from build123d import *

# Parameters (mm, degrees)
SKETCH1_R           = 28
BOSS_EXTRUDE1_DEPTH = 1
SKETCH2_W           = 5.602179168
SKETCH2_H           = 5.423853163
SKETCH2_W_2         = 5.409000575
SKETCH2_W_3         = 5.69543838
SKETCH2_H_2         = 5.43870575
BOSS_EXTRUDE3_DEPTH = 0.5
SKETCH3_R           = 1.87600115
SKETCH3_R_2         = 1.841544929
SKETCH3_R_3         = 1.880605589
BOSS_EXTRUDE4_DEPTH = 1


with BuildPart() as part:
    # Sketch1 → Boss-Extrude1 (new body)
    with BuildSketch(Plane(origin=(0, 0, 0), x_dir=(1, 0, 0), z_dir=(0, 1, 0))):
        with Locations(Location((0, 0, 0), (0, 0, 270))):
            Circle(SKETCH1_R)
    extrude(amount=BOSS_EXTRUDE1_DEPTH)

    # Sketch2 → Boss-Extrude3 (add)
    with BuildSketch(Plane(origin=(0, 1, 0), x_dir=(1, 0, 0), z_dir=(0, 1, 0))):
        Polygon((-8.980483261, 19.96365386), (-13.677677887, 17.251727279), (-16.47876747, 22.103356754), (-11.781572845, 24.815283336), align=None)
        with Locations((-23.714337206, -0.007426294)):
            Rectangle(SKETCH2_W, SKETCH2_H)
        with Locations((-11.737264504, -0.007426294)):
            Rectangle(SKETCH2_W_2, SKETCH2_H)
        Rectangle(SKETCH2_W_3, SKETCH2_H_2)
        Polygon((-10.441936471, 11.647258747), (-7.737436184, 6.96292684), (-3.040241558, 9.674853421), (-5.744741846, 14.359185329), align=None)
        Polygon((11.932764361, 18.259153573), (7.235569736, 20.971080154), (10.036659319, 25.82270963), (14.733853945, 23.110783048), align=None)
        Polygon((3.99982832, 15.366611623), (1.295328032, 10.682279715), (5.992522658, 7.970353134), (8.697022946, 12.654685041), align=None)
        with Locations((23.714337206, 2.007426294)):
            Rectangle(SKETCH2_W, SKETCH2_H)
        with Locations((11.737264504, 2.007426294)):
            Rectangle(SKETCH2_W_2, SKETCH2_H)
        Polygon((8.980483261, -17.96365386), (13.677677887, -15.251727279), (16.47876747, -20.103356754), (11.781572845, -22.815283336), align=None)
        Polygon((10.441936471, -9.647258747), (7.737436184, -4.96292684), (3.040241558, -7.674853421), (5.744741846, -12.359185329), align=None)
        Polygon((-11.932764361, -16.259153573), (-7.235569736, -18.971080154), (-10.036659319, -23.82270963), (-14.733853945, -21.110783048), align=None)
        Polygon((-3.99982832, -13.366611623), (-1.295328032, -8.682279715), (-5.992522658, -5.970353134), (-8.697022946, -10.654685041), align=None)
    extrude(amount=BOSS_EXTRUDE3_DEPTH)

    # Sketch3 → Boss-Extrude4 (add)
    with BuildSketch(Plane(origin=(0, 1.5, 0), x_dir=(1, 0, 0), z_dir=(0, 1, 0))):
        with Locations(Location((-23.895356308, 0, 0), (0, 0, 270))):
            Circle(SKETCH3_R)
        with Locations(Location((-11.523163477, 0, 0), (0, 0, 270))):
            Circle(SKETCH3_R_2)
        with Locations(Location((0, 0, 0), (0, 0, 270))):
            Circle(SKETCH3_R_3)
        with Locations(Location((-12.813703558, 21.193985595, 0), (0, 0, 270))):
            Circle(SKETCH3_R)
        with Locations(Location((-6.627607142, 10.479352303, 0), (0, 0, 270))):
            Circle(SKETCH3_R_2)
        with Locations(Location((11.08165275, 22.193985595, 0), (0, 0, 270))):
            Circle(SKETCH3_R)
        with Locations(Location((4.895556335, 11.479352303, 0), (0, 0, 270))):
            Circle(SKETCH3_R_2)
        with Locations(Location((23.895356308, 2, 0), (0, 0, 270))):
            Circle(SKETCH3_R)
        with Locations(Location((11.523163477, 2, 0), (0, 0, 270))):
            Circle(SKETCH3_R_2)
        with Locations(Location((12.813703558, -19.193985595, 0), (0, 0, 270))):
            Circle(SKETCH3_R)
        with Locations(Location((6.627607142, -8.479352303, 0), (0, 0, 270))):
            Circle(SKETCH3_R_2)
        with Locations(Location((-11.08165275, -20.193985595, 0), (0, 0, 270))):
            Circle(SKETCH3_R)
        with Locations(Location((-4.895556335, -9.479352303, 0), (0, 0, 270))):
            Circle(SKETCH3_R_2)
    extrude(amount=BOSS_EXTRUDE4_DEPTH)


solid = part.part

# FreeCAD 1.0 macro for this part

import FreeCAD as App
import Part
import Sketcher

V = App.Vector
Q = App.Units.Quantity

doc = App.newDocument("Part")
body = doc.addObject("PartDesign::Body", "Body")

sketch1 = doc.addObject("Sketcher::SketchObject", "Sketch")
body.addObject(sketch1)
sketch1.AttachmentSupport = (doc.XZ_Plane, [""])
sketch1.MapMode = "FlatFace"
sketch1.addGeometry(Part.Circle(V(0, 0, 0), V(0, 0, 1), 28), False)
sketch1.addConstraint([
    Sketcher.Constraint("Coincident", 0, 3, -1, 1),
    Sketcher.Constraint("Diameter", 0, Q("56 mm")),
])
pad1 = doc.addObject("PartDesign::Pad", "Pad")
body.addObject(pad1)
pad1.Profile = sketch1
pad1.Length = 1
pad1.Reversed = True

sketch2 = doc.addObject("Sketcher::SketchObject", "Sketch001")
body.addObject(sketch2)
sketch2.AttachmentSupport = (doc.XZ_Plane, [""])
sketch2.MapMode = "FlatFace"
sketch2.AttachmentOffset = App.Placement(V(0, 0, -1), App.Rotation())
sketch2.addGeometry([
    Part.LineSegment(V(-14, -17, 0), V(-9, -20, 0)),
    Part.LineSegment(V(-9, -20, 0), V(-12, -25, 0)),
    Part.LineSegment(V(-12, -25, 0), V(-16, -22, 0)),
    Part.LineSegment(V(-16, -22, 0), V(-14, -17, 0)),
    Part.LineSegment(V(-27, -3, 0), V(-27, 3, 0)),
    Part.LineSegment(V(-27, 3, 0), V(-21, 3, 0)),
    Part.LineSegment(V(-21, 3, 0), V(-21, -3, 0)),
    Part.LineSegment(V(-21, -3, 0), V(-27, -3, 0)),
    Part.LineSegment(V(-14, -3, 0), V(-14, 3, 0)),
    Part.LineSegment(V(-14, 3, 0), V(-9, 3, 0)),
    Part.LineSegment(V(-9, 3, 0), V(-9, -3, 0)),
    Part.LineSegment(V(-9, -3, 0), V(-14, -3, 0)),
    Part.LineSegment(V(-3, -3, 0), V(-3, 3, 0)),
    Part.LineSegment(V(-3, 3, 0), V(3, 3, 0)),
    Part.LineSegment(V(3, 3, 0), V(3, -3, 0)),
    Part.LineSegment(V(3, -3, 0), V(-3, -3, 0)),
    Part.LineSegment(V(-10, -12, 0), V(-8, -7, 0)),
    Part.LineSegment(V(-8, -7, 0), V(-3, -10, 0)),
    Part.LineSegment(V(-3, -10, 0), V(-6, -14, 0)),
    Part.LineSegment(V(-6, -14, 0), V(-10, -12, 0)),
    Part.LineSegment(V(7, -21, 0), V(12, -18, 0)),
    Part.LineSegment(V(12, -18, 0), V(15, -23, 0)),
    Part.LineSegment(V(15, -23, 0), V(10, -26, 0)),
    Part.LineSegment(V(10, -26, 0), V(7, -21, 0)),
    Part.LineSegment(V(4, -15, 0), V(1, -11, 0)),
    Part.LineSegment(V(1, -11, 0), V(6, -8, 0)),
    Part.LineSegment(V(6, -8, 0), V(9, -13, 0)),
    Part.LineSegment(V(9, -13, 0), V(4, -15, 0)),
    Part.LineSegment(V(21, -5, 0), V(21, 1, 0)),
    Part.LineSegment(V(21, 1, 0), V(27, 1, 0)),
    Part.LineSegment(V(27, 1, 0), V(27, -5, 0)),
    Part.LineSegment(V(27, -5, 0), V(21, -5, 0)),
    Part.LineSegment(V(9, -5, 0), V(9, 1, 0)),
    Part.LineSegment(V(9, 1, 0), V(14, 1, 0)),
    Part.LineSegment(V(14, 1, 0), V(14, -5, 0)),
    Part.LineSegment(V(14, -5, 0), V(9, -5, 0)),
    Part.LineSegment(V(14, 15, 0), V(9, 18, 0)),
    Part.LineSegment(V(9, 18, 0), V(12, 23, 0)),
    Part.LineSegment(V(12, 23, 0), V(16, 20, 0)),
    Part.LineSegment(V(16, 20, 0), V(14, 15, 0)),
    Part.LineSegment(V(10, 10, 0), V(8, 5, 0)),
    Part.LineSegment(V(8, 5, 0), V(3, 8, 0)),
    Part.LineSegment(V(3, 8, 0), V(6, 12, 0)),
    Part.LineSegment(V(6, 12, 0), V(10, 10, 0)),
    Part.LineSegment(V(-7, 19, 0), V(-12, 16, 0)),
    Part.LineSegment(V(-12, 16, 0), V(-15, 21, 0)),
    Part.LineSegment(V(-15, 21, 0), V(-10, 24, 0)),
    Part.LineSegment(V(-10, 24, 0), V(-7, 19, 0)),
    Part.LineSegment(V(-4, 13, 0), V(-1, 9, 0)),
    Part.LineSegment(V(-1, 9, 0), V(-6, 6, 0)),
    Part.LineSegment(V(-6, 6, 0), V(-9, 11, 0)),
    Part.LineSegment(V(-9, 11, 0), V(-4, 13, 0)),
], False)
sketch2.addConstraint([
    Sketcher.Constraint("Coincident", 0, 2, 1, 1),
    Sketcher.Constraint("Coincident", 1, 2, 2, 1),
    Sketcher.Constraint("Coincident", 2, 2, 3, 1),
    Sketcher.Constraint("Coincident", 3, 2, 0, 1),
    Sketcher.Constraint("Coincident", 4, 2, 5, 1),
    Sketcher.Constraint("Coincident", 5, 2, 6, 1),
    Sketcher.Constraint("Coincident", 6, 2, 7, 1),
    Sketcher.Constraint("Coincident", 7, 2, 4, 1),
    Sketcher.Constraint("Coincident", 8, 2, 9, 1),
    Sketcher.Constraint("Coincident", 9, 2, 10, 1),
    Sketcher.Constraint("Coincident", 10, 2, 11, 1),
    Sketcher.Constraint("Coincident", 11, 2, 8, 1),
    Sketcher.Constraint("Coincident", 12, 2, 13, 1),
    Sketcher.Constraint("Coincident", 13, 2, 14, 1),
    Sketcher.Constraint("Coincident", 14, 2, 15, 1),
    Sketcher.Constraint("Coincident", 15, 2, 12, 1),
    Sketcher.Constraint("Coincident", 16, 2, 17, 1),
    Sketcher.Constraint("Coincident", 17, 2, 18, 1),
    Sketcher.Constraint("Coincident", 18, 2, 19, 1),
    Sketcher.Constraint("Coincident", 19, 2, 16, 1),
    Sketcher.Constraint("Coincident", 20, 2, 21, 1),
    Sketcher.Constraint("Coincident", 21, 2, 22, 1),
    Sketcher.Constraint("Coincident", 22, 2, 23, 1),
    Sketcher.Constraint("Coincident", 23, 2, 20, 1),
    Sketcher.Constraint("Coincident", 24, 2, 25, 1),
    Sketcher.Constraint("Coincident", 25, 2, 26, 1),
    Sketcher.Constraint("Coincident", 26, 2, 27, 1),
    Sketcher.Constraint("Coincident", 27, 2, 24, 1),
    Sketcher.Constraint("Coincident", 28, 2, 29, 1),
    Sketcher.Constraint("Coincident", 29, 2, 30, 1),
    Sketcher.Constraint("Coincident", 30, 2, 31, 1),
    Sketcher.Constraint("Coincident", 31, 2, 28, 1),
    Sketcher.Constraint("Coincident", 32, 2, 33, 1),
    Sketcher.Constraint("Coincident", 33, 2, 34, 1),
    Sketcher.Constraint("Coincident", 34, 2, 35, 1),
    Sketcher.Constraint("Coincident", 35, 2, 32, 1),
    Sketcher.Constraint("Coincident", 36, 2, 37, 1),
    Sketcher.Constraint("Coincident", 37, 2, 38, 1),
    Sketcher.Constraint("Coincident", 38, 2, 39, 1),
    Sketcher.Constraint("Coincident", 39, 2, 36, 1),
    Sketcher.Constraint("Coincident", 40, 2, 41, 1),
    Sketcher.Constraint("Coincident", 41, 2, 42, 1),
    Sketcher.Constraint("Coincident", 42, 2, 43, 1),
    Sketcher.Constraint("Coincident", 43, 2, 40, 1),
    Sketcher.Constraint("Coincident", 44, 2, 45, 1),
    Sketcher.Constraint("Coincident", 45, 2, 46, 1),
    Sketcher.Constraint("Coincident", 46, 2, 47, 1),
    Sketcher.Constraint("Coincident", 47, 2, 44, 1),
    Sketcher.Constraint("Coincident", 48, 2, 49, 1),
    Sketcher.Constraint("Coincident", 49, 2, 50, 1),
    Sketcher.Constraint("Coincident", 50, 2, 51, 1),
    Sketcher.Constraint("Coincident", 51, 2, 48, 1),
    Sketcher.Constraint("Vertical", 4),
    Sketcher.Constraint("Horizontal", 5),
    Sketcher.Constraint("Vertical", 6),
    Sketcher.Constraint("Horizontal", 7),
    Sketcher.Constraint("Vertical", 8),
    Sketcher.Constraint("Horizontal", 9),
    Sketcher.Constraint("Vertical", 10),
    Sketcher.Constraint("Horizontal", 11),
    Sketcher.Constraint("Vertical", 12),
    Sketcher.Constraint("Horizontal", 13),
    Sketcher.Constraint("Vertical", 14),
    Sketcher.Constraint("Horizontal", 15),
    Sketcher.Constraint("Vertical", 28),
    Sketcher.Constraint("Horizontal", 29),
    Sketcher.Constraint("Vertical", 30),
    Sketcher.Constraint("Horizontal", 31),
    Sketcher.Constraint("Vertical", 32),
    Sketcher.Constraint("Horizontal", 33),
    Sketcher.Constraint("Vertical", 34),
    Sketcher.Constraint("Horizontal", 35),
    Sketcher.Constraint("Symmetric", 12, 2, 14, 2, -1, 1),
    Sketcher.Constraint("Perpendicular", 0, 1),
    Sketcher.Constraint("Perpendicular", 1, 2),
    Sketcher.Constraint("Perpendicular", 2, 3),
    Sketcher.Constraint("Parallel", 3, 16),
    Sketcher.Constraint("Perpendicular", 16, 17),
    Sketcher.Constraint("Perpendicular", 17, 18),
    Sketcher.Constraint("Perpendicular", 18, 19),
    Sketcher.Constraint("Perpendicular", 20, 21),
    Sketcher.Constraint("Perpendicular", 21, 22),
    Sketcher.Constraint("Perpendicular", 22, 23),
    Sketcher.Constraint("Parallel", 23, 24),
    Sketcher.Constraint("Perpendicular", 24, 25),
    Sketcher.Constraint("Perpendicular", 25, 26),
    Sketcher.Constraint("Perpendicular", 26, 27),
    Sketcher.Constraint("Parallel", 19, 36),
    Sketcher.Constraint("Perpendicular", 36, 37),
    Sketcher.Constraint("Perpendicular", 37, 38),
    Sketcher.Constraint("Perpendicular", 38, 39),
    Sketcher.Constraint("Parallel", 39, 40),
    Sketcher.Constraint("Perpendicular", 40, 41),
    Sketcher.Constraint("Perpendicular", 41, 42),
    Sketcher.Constraint("Perpendicular", 42, 43),
    Sketcher.Constraint("Parallel", 27, 44),
    Sketcher.Constraint("Perpendicular", 44, 45),
    Sketcher.Constraint("Perpendicular", 45, 46),
    Sketcher.Constraint("Perpendicular", 46, 47),
    Sketcher.Constraint("Parallel", 47, 48),
    Sketcher.Constraint("Perpendicular", 48, 49),
    Sketcher.Constraint("Perpendicular", 49, 50),
    Sketcher.Constraint("Perpendicular", 50, 51),
    Sketcher.Constraint("Horizontal", 5, 2, 8, 2),
    Sketcher.Constraint("Horizontal", 7, 2, 10, 2),
    Sketcher.Constraint("Horizontal", 9, 2, 12, 2),
    Sketcher.Constraint("Horizontal", 29, 2, 32, 2),
    Sketcher.Constraint("Horizontal", 31, 2, 34, 2),
    Sketcher.Constraint("Equal", 7, 29),
    Sketcher.Constraint("Equal", 11, 33),
    Sketcher.Constraint("Equal", 10, 28),
    Sketcher.Constraint("Equal", 2, 17),
    Sketcher.Constraint("Equal", 19, 20),
    Sketcher.Constraint("Equal", 3, 21),
    Sketcher.Constraint("Equal", 18, 24),
    Sketcher.Constraint("Equal", 22, 25),
    Sketcher.Constraint("Equal", 27, 36),
    Sketcher.Constraint("Equal", 23, 37),
    Sketcher.Constraint("Equal", 26, 40),
    Sketcher.Constraint("Equal", 38, 41),
    Sketcher.Constraint("Equal", 43, 44),
    Sketcher.Constraint("Equal", 39, 45),
    Sketcher.Constraint("Equal", 42, 48),
    Sketcher.Constraint("Equal", 46, 49),
    Sketcher.Constraint("Angle", 0, Q("-30 deg")),
    Sketcher.Constraint("Angle", 20, Q("30 deg")),
    Sketcher.Constraint("DistanceY", 35, 2, 14, 2, Q("2 mm")),
    Sketcher.Constraint("DistanceX", 44, 2, 9, 2, Q("2.9 mm")),
    Sketcher.Constraint("DistanceX", 9, 1, 9, 2, Q("5.409001 mm")),
    Sketcher.Constraint("Distance", 16, Q("5.409001 mm")),
    Sketcher.Constraint("DistanceY", 25, 2, 14, 2, Q("5.251 mm")),
    Sketcher.Constraint("DistanceY", 9, 2, 49, 2, Q("3.251 mm")),
    Sketcher.Constraint("DistanceX", 5, 1, 5, 2, Q("5.602179 mm")),
    Sketcher.Constraint("DistanceX", 13, 1, 13, 2, Q("5.695438 mm")),
    Sketcher.Constraint("DistanceY", 6, 2, -1, 1, Q("2.7045 mm")),
    Sketcher.Constraint("DistanceY", 17, 2, 15, 2, Q("6.955501 mm")),
    Sketcher.Constraint("DistanceY", 0, 2, 17, 2, Q("10.2888 mm")),
    Sketcher.Constraint("DistanceY", 20, 2, 17, 2, Q("8.5843 mm")),
    Sketcher.Constraint("DistanceX", 18, 2, 22, 2, Q("15.781401 mm")),
    Sketcher.Constraint("DistanceY", 13, 2, 36, 2, Q("15.244301 mm")),
    Sketcher.Constraint("DistanceY", 13, 2, 41, 2, Q("4.955501 mm")),
    Sketcher.Constraint("DistanceY", 8, 2, 44, 2, Q("13.539801 mm")),
    Sketcher.Constraint("DistanceX", 46, 2, 42, 2, Q("15.781401 mm")),
    Sketcher.Constraint("Distance", 1, Q("5.602179 mm")),
    Sketcher.Constraint("DistanceY", 4, 1, 4, 2, Q("5.423853 mm")),
    Sketcher.Constraint("DistanceX", 17, 2, -1, 1, Q("3.040242 mm")),
    Sketcher.Constraint("DistanceY", 19, 2, -1, 1, Q("11.647259 mm")),
    Sketcher.Constraint("DistanceX", -1, 1, 24, 2, Q("1.295328 mm")),
    Sketcher.Constraint("DistanceX", -1, 1, 41, 2, Q("3.040242 mm")),
    Sketcher.Constraint("DistanceX", 48, 2, -1, 1, Q("1.295328 mm")),
    Sketcher.Constraint("DistanceX", 4, 2, 3, 2, Q("12.837749 mm")),
    Sketcher.Constraint("DistanceX", 4, 2, 8, 2, Q("12.073662 mm")),
    Sketcher.Constraint("DistanceX", 13, 2, 28, 2, Q("18.065528 mm")),
    Sketcher.Constraint("DistanceX", 25, 2, 32, 2, Q("3.040242 mm")),
    Sketcher.Constraint("DistanceX", 36, 2, 32, 2, Q("0.052281 mm")),
])
pad2 = doc.addObject("PartDesign::Pad", "Pad001")
body.addObject(pad2)
pad2.Profile = sketch2
pad2.Length = 0.5
pad2.Reversed = True

sketch3 = doc.addObject("Sketcher::SketchObject", "Sketch002")
body.addObject(sketch3)
sketch3.AttachmentSupport = (doc.XZ_Plane, [""])
sketch3.MapMode = "FlatFace"
sketch3.AttachmentOffset = App.Placement(V(0, 0, -1.5), App.Rotation())
sketch3.addGeometry([
    Part.Circle(V(-23.9, 0, 0), V(0, 0, 1), 1.9),
    Part.Circle(V(-11.5, 0, 0), V(0, 0, 1), 1.8),
    Part.Circle(V(0, 0, 0), V(0, 0, 1), 1.9),
    Part.Circle(V(-12.8, -21.2, 0), V(0, 0, 1), 1.9),
    Part.Circle(V(-6.6, -10.5, 0), V(0, 0, 1), 1.8),
    Part.Circle(V(11.1, -22.2, 0), V(0, 0, 1), 1.9),
    Part.Circle(V(4.9, -11.5, 0), V(0, 0, 1), 1.8),
    Part.Circle(V(23.9, -2, 0), V(0, 0, 1), 1.9),
    Part.Circle(V(11.5, -2, 0), V(0, 0, 1), 1.8),
    Part.Circle(V(12.8, 19.2, 0), V(0, 0, 1), 1.9),
    Part.Circle(V(6.6, 8.5, 0), V(0, 0, 1), 1.8),
    Part.Circle(V(-11.1, 20.2, 0), V(0, 0, 1), 1.9),
    Part.Circle(V(-4.9, 9.5, 0), V(0, 0, 1), 1.8),
], False)
sketch3.addConstraint([
    Sketcher.Constraint("Coincident", 2, 3, -1, 1),
    Sketcher.Constraint("Equal", 0, 3),
    Sketcher.Constraint("Equal", 1, 4),
    Sketcher.Constraint("Equal", 3, 5),
    Sketcher.Constraint("Equal", 4, 6),
    Sketcher.Constraint("Equal", 5, 7),
    Sketcher.Constraint("Equal", 6, 8),
    Sketcher.Constraint("Equal", 7, 9),
    Sketcher.Constraint("Equal", 8, 10),
    Sketcher.Constraint("Equal", 9, 11),
    Sketcher.Constraint("Equal", 10, 12),
    Sketcher.Constraint("PointOnObject", 0, 3, -1),
    Sketcher.Constraint("PointOnObject", 1, 3, -1),
    Sketcher.Constraint("Horizontal", 7, 3, 8, 3),
    Sketcher.Constraint("DistanceY", 7, 3, -1, 1, Q("2 mm")),
    Sketcher.Constraint("DistanceY", 5, 3, 3, 3, Q("1 mm")),
    Sketcher.Constraint("DistanceY", 6, 3, 4, 3, Q("1 mm")),
    Sketcher.Constraint("DistanceY", 9, 3, 11, 3, Q("1 mm")),
    Sketcher.Constraint("DistanceY", 10, 3, 12, 3, Q("1 mm")),
    Sketcher.Constraint("Diameter", 1, Q("3.68309 mm")),
    Sketcher.Constraint("Diameter", 2, Q("3.761211 mm")),
    Sketcher.Constraint("Diameter", 0, Q("3.752002 mm")),
    Sketcher.Constraint("DistanceX", 6, 3, 7, 3, Q("18.9998 mm")),
    Sketcher.Constraint("DistanceX", 3, 3, 1, 3, Q("1.29054 mm")),
    Sketcher.Constraint("DistanceX", 0, 3, 4, 3, Q("17.267749 mm")),
    Sketcher.Constraint("DistanceX", 4, 3, 5, 3, Q("17.70926 mm")),
    Sketcher.Constraint("DistanceX", 1, 3, 6, 3, Q("16.41872 mm")),
    Sketcher.Constraint("DistanceX", 4, 3, 8, 3, Q("18.150771 mm")),
    Sketcher.Constraint("DistanceX", 8, 3, 9, 3, Q("1.29054 mm")),
    Sketcher.Constraint("DistanceX", 1, 3, 10, 3, Q("18.150771 mm")),
    Sketcher.Constraint("DistanceX", 1, 3, 11, 3, Q("0.441511 mm")),
    Sketcher.Constraint("DistanceX", 4, 3, 12, 3, Q("1.732051 mm")),
    Sketcher.Constraint("DistanceX", 0, 3, -1, 1, Q("23.895356 mm")),
    Sketcher.Constraint("DistanceX", 1, 3, -1, 1, Q("11.523163 mm")),
    Sketcher.Constraint("DistanceY", 3, 3, -1, 1, Q("21.193986 mm")),
    Sketcher.Constraint("DistanceY", 4, 3, -1, 1, Q("10.479352 mm")),
    Sketcher.Constraint("DistanceY", -1, 1, 9, 3, Q("19.193986 mm")),
    Sketcher.Constraint("DistanceY", -1, 1, 10, 3, Q("8.479352 mm")),
])
pad3 = doc.addObject("PartDesign::Pad", "Pad002")
body.addObject(pad3)
pad3.Profile = sketch3
pad3.Length = 1
pad3.Reversed = True

doc.recompute()
